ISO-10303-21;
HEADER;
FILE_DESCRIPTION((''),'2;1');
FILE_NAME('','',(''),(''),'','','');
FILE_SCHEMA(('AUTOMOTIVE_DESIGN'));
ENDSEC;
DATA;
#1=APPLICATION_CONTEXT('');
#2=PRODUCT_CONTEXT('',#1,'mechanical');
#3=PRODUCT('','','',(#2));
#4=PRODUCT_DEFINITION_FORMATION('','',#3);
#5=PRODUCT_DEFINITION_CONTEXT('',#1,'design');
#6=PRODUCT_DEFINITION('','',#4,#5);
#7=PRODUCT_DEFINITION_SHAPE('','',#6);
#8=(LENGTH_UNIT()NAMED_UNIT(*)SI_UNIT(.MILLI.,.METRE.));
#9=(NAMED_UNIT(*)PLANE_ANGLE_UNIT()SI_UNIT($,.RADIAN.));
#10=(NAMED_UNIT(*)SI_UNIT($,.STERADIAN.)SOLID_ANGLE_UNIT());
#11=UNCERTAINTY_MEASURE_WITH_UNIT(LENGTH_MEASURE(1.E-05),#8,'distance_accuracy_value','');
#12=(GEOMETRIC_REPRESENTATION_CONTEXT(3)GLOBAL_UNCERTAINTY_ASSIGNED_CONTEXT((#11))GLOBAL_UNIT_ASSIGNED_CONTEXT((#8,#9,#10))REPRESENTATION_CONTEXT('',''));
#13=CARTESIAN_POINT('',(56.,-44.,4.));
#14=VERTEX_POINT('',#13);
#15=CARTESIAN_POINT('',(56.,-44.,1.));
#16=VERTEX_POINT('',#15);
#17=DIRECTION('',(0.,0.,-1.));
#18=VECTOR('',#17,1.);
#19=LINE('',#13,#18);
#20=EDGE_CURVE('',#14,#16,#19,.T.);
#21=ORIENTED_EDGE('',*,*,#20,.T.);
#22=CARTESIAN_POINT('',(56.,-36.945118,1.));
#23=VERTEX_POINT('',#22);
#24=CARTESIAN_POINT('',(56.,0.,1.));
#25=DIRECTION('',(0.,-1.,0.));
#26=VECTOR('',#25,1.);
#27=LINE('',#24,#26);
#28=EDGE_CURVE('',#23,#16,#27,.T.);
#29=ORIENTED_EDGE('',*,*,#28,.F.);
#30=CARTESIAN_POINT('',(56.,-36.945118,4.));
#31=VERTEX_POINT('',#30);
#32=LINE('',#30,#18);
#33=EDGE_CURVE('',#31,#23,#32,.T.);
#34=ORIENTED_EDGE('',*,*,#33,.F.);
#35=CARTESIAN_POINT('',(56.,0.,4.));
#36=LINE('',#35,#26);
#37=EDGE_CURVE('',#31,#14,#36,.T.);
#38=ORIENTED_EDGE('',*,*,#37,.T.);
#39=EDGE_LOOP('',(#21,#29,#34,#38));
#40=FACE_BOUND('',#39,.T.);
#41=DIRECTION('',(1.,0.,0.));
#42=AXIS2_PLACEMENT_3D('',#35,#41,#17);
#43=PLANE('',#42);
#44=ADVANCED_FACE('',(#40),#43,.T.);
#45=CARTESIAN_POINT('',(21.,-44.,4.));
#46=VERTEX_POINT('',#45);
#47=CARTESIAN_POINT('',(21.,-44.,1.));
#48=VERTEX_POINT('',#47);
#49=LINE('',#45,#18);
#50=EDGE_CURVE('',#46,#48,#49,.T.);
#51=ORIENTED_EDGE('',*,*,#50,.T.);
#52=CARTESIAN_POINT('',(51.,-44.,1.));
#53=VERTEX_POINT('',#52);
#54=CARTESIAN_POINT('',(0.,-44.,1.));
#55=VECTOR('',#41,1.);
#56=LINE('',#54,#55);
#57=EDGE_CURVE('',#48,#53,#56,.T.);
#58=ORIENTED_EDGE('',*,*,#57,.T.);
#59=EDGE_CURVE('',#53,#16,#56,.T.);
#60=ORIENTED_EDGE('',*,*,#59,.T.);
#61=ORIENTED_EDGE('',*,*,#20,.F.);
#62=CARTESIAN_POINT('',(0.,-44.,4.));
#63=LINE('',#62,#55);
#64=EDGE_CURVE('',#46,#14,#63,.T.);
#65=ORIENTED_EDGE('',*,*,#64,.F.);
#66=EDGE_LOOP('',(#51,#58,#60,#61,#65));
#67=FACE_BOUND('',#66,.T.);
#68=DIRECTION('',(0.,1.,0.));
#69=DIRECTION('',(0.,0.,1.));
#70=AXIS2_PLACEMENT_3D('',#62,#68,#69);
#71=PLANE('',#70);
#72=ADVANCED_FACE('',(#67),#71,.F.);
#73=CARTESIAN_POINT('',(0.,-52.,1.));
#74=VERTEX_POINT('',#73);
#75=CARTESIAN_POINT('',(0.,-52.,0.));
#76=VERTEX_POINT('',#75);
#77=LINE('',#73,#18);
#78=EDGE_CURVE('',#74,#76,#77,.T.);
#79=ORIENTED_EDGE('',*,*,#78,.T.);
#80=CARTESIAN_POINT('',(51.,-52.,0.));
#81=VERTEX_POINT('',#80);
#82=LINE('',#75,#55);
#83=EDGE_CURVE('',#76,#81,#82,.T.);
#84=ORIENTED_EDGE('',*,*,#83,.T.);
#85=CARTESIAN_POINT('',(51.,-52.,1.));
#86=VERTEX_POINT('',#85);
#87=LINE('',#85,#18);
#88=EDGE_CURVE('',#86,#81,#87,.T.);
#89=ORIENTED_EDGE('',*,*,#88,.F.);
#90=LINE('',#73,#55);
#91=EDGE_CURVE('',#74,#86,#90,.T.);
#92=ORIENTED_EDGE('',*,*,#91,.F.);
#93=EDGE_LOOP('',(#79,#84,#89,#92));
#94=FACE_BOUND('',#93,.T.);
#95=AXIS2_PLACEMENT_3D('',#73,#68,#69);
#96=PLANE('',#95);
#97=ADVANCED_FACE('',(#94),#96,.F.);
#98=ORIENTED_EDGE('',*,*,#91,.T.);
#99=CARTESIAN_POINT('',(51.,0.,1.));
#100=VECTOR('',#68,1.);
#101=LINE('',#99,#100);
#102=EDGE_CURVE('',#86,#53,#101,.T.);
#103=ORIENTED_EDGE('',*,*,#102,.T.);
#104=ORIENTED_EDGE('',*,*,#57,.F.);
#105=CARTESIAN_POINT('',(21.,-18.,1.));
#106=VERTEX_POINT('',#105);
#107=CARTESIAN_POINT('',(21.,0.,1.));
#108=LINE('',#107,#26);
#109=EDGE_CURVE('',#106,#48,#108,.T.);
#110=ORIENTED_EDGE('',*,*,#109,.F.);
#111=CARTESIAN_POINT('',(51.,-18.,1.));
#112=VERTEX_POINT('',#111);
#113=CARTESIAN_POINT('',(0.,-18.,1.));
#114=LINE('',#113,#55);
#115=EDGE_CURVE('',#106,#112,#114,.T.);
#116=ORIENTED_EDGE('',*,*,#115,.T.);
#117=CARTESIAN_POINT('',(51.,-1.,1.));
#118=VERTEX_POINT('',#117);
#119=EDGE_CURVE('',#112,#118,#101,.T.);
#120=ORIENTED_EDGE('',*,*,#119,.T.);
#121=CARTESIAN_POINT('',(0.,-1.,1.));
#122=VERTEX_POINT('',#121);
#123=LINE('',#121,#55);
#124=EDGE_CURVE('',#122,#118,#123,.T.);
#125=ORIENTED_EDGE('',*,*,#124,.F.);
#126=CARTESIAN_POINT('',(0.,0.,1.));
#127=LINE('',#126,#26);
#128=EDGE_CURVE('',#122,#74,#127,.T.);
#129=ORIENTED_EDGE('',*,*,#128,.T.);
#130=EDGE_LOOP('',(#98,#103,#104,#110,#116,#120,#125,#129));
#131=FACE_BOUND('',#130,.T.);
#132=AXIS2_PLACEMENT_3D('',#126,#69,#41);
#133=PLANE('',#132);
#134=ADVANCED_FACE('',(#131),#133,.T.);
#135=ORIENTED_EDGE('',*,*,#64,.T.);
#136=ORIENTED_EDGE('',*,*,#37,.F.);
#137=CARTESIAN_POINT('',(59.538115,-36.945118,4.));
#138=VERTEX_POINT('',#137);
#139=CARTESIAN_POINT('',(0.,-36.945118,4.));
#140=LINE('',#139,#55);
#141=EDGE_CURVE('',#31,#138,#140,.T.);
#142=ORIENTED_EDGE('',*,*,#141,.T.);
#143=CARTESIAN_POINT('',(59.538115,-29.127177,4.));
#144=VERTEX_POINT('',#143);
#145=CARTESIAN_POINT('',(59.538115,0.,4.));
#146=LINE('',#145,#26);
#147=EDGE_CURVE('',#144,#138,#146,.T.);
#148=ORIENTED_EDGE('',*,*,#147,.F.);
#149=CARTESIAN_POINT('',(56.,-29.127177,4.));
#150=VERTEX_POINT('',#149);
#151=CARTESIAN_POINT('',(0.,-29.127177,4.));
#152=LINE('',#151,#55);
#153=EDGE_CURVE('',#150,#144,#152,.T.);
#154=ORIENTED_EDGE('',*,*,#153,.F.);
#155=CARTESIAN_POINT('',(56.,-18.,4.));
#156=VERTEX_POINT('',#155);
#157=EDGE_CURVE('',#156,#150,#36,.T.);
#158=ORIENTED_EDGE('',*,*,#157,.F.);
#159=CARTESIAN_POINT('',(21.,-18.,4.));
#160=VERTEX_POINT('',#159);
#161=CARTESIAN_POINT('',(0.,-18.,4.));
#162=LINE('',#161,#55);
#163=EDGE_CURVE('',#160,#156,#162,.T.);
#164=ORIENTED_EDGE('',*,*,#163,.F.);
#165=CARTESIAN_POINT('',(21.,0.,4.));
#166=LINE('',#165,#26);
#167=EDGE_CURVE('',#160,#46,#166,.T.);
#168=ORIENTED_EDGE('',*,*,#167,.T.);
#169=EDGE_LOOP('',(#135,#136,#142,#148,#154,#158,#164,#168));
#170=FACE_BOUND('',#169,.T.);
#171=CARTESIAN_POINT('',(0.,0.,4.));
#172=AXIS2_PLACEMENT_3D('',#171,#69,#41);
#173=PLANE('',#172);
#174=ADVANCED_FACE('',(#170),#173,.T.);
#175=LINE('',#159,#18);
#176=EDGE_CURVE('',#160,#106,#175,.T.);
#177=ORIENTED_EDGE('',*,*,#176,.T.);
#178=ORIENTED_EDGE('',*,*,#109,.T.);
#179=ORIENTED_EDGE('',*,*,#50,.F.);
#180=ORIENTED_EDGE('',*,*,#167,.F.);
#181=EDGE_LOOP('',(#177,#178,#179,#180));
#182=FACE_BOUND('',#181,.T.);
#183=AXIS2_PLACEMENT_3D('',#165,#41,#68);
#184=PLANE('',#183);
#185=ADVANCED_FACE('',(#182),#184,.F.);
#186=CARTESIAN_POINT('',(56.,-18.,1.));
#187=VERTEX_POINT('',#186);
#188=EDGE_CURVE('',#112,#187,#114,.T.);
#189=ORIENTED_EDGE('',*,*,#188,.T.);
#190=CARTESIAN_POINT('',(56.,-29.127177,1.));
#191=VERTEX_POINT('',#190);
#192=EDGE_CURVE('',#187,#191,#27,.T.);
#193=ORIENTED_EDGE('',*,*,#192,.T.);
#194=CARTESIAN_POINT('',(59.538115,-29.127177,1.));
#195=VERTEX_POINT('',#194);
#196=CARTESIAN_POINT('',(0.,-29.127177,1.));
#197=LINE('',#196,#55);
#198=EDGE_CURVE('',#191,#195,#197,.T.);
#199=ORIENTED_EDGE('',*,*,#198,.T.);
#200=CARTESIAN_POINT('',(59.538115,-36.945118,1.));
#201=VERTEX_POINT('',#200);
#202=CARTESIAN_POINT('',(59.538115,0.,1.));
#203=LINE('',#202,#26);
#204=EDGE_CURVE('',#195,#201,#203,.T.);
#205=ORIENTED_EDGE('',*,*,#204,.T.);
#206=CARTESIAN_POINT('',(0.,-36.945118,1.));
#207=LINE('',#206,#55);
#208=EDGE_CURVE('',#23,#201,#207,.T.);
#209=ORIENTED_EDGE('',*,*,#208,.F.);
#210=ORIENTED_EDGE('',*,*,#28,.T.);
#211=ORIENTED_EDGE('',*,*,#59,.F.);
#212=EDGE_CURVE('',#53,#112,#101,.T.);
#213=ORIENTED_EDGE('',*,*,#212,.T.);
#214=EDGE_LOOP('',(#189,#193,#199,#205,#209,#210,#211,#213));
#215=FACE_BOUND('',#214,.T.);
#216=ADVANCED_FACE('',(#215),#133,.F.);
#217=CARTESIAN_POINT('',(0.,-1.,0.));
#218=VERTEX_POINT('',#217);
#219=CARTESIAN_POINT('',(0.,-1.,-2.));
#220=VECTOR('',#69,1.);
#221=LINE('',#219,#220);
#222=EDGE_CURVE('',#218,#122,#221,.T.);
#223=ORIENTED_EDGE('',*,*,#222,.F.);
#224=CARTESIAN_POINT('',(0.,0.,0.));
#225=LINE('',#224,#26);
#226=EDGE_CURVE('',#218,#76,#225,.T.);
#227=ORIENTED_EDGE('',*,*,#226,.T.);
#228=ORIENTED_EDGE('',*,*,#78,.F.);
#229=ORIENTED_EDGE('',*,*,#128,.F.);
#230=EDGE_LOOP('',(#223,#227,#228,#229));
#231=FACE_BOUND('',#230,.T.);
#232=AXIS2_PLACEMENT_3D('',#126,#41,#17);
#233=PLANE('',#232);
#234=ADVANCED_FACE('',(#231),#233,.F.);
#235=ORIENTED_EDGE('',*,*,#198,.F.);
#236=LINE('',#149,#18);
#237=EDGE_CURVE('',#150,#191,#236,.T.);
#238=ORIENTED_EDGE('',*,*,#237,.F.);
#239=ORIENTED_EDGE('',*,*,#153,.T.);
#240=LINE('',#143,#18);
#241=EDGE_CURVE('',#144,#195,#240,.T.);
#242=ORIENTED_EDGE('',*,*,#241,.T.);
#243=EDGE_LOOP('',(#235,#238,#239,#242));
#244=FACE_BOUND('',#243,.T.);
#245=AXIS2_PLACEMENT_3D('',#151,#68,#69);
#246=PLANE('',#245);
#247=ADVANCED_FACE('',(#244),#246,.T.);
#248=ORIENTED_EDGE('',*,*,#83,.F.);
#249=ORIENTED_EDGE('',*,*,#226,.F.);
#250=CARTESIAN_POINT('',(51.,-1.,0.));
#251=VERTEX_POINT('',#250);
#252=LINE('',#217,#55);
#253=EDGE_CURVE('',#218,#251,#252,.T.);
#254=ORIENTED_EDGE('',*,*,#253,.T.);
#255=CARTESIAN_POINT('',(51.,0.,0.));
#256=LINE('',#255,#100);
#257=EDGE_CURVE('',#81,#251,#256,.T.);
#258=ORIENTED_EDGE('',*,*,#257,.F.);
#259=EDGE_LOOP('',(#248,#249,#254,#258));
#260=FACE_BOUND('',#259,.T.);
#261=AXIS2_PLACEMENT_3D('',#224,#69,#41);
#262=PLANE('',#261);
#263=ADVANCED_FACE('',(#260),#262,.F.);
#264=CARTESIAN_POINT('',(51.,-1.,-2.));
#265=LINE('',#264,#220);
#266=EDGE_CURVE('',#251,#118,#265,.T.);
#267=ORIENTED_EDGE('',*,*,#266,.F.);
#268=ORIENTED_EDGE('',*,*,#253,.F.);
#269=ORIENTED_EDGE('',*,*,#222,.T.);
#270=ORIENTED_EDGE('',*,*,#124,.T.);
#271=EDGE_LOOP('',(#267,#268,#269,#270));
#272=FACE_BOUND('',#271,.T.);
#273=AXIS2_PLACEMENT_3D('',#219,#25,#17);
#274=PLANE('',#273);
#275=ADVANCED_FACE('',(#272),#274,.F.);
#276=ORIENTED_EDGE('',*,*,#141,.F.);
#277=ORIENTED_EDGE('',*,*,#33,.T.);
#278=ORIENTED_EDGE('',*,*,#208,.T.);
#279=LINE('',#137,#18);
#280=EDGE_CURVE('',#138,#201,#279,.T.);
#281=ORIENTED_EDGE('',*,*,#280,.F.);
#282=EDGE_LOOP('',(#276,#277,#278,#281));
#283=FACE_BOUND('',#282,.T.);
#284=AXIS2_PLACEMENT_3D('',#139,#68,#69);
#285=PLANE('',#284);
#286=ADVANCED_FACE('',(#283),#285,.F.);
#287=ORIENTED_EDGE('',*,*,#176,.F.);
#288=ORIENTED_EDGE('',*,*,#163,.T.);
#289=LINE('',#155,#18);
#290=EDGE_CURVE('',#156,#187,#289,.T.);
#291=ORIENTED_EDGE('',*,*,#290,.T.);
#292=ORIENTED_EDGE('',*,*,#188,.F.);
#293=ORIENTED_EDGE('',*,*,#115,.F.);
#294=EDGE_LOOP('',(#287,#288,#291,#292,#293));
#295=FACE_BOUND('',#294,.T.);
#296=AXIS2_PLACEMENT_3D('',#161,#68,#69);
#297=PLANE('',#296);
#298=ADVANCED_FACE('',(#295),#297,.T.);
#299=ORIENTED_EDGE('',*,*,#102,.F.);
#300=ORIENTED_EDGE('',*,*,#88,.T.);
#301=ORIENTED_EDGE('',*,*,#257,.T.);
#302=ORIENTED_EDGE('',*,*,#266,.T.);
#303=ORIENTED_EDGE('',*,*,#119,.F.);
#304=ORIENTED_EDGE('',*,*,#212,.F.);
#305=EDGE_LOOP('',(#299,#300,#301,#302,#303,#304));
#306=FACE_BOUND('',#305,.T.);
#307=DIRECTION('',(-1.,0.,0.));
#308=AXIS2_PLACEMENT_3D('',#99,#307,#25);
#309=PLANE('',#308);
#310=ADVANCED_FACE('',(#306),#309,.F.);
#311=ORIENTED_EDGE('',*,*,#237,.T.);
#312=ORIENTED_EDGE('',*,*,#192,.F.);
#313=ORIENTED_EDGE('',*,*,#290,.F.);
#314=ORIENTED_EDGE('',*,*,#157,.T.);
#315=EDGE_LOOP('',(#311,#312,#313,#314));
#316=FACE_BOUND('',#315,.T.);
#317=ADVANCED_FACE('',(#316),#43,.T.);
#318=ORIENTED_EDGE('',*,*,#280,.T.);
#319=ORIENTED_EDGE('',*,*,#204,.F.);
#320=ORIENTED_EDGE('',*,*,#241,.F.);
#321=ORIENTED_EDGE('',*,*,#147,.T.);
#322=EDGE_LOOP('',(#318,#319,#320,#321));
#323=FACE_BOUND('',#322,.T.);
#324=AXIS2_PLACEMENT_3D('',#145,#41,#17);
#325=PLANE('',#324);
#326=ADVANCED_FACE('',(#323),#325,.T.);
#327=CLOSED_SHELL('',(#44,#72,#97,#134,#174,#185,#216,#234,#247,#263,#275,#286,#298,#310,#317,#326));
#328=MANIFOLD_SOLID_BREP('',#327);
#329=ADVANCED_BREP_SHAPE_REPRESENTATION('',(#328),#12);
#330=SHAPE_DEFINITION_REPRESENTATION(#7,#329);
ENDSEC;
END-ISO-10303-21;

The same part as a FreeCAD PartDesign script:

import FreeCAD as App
import Part
import Sketcher
from FreeCAD import Vector


def add_polygon(sketch, points):
    """Adds a closed chain of lines whose ends are joined by coincident constraints."""
    first, n = sketch.GeometryCount, len(points)
    for a, b in zip(points, points[1:] + points[:1]):
        sketch.addGeometry(Part.LineSegment(App.Vector(*a, 0), App.Vector(*b, 0)), False)
    for i in range(n):
        sketch.addConstraint(Sketcher.Constraint("Coincident", first + i, 2, first + (i + 1) % n, 1))

doc = App.newDocument("Part")
body = doc.addObject("PartDesign::Body", "Body")

# Sketch on XY plane
sketch1 = body.newObject("Sketcher::SketchObject", "Sketch")
sketch1.AttachmentSupport = (doc.getObject("XY_Plane"), [""])
sketch1.MapMode = "FlatFace"
add_polygon(sketch1, [(0, 0), (0, -52), (51, -52), (51, 0)])  # lines 0-3
sketch1.addConstraint([
    Sketcher.Constraint("Vertical", 0),
    Sketcher.Constraint("Horizontal", 1),
    Sketcher.Constraint("Vertical", 2),
    Sketcher.Constraint("Horizontal", 3),
    Sketcher.Constraint("Coincident", 3, 2, -1, 1),
    Sketcher.Constraint("DistanceX", 1, 1, 1, 2, 51.0),
    Sketcher.Constraint("DistanceY", 0, 2, 0, 1, 52.0),
])
pad1 = body.newObject("PartDesign::Pad", "Pad")
pad1.Profile = sketch1
pad1.Length = 1

# Sketch on XY plane
sketch2 = body.newObject("Sketcher::SketchObject", "Sketch001")
sketch2.AttachmentSupport = (doc.getObject("XY_Plane"), [""])
sketch2.MapMode = "FlatFace"
sketch2.AttachmentOffset = App.Placement(Vector(0, 0, 1), App.Rotation())
add_polygon(sketch2, [(21, -18), (21, -44), (56, -44), (56, -36.9), (59.5, -36.9), (59.5, -29.1), (56, -29.1), (56, -18)])  # lines 0-7
sketch2.addConstraint([
    Sketcher.Constraint("Vertical", 0),
    Sketcher.Constraint("Horizontal", 1),
    Sketcher.Constraint("Vertical", 2),
    Sketcher.Constraint("Horizontal", 3),
    Sketcher.Constraint("Vertical", 4),
    Sketcher.Constraint("Horizontal", 5),
    Sketcher.Constraint("Vertical", 6),
    Sketcher.Constraint("Horizontal", 7),
    Sketcher.Constraint("Vertical", 2, 2, 5, 2),
    Sketcher.Constraint("DistanceX", 1, 1, 1, 2, 35.0),
    Sketcher.Constraint("DistanceY", 0, 2, 0, 1, 26.0),
    Sketcher.Constraint("DistanceX", -1, 1, 0, 2, 21.0),
    Sketcher.Constraint("DistanceY", 0, 2, -1, 1, 44.0),
    Sketcher.Constraint("DistanceY", 2, 1, 2, 2, 7.054882),
    Sketcher.Constraint("DistanceY", 4, 1, 4, 2, 7.817942),
    Sketcher.Constraint("DistanceX", 3, 1, 3, 2, 3.538115),
])
pad2 = body.newObject("PartDesign::Pad", "Pad001")
pad2.Profile = sketch2
pad2.Length = 3

# Sketch on XY plane
sketch3 = body.newObject("Sketcher::SketchObject", "Sketch002")
sketch3.AttachmentSupport = (doc.getObject("XY_Plane"), [""])
sketch3.MapMode = "FlatFace"
sketch3.AttachmentOffset = App.Placement(Vector(0, 0, 1), App.Rotation())
add_polygon(sketch3, [(0, 0), (0, -1), (51, -1), (51, 0)])  # lines 0-3
sketch3.addConstraint([
    Sketcher.Constraint("Vertical", 0),
    Sketcher.Constraint("Horizontal", 1),
    Sketcher.Constraint("Vertical", 2),
    Sketcher.Constraint("Horizontal", 3),
    Sketcher.Constraint("Coincident", 3, 2, -1, 1),
    Sketcher.Constraint("DistanceX", 1, 1, 1, 2, 51.0),
    Sketcher.Constraint("DistanceY", 0, 2, 0, 1, 1.0),
])
pocket1 = body.newObject("PartDesign::Pocket", "Pocket")
pocket1.Profile = sketch3
pocket1.Length = 3

doc.recompute()
